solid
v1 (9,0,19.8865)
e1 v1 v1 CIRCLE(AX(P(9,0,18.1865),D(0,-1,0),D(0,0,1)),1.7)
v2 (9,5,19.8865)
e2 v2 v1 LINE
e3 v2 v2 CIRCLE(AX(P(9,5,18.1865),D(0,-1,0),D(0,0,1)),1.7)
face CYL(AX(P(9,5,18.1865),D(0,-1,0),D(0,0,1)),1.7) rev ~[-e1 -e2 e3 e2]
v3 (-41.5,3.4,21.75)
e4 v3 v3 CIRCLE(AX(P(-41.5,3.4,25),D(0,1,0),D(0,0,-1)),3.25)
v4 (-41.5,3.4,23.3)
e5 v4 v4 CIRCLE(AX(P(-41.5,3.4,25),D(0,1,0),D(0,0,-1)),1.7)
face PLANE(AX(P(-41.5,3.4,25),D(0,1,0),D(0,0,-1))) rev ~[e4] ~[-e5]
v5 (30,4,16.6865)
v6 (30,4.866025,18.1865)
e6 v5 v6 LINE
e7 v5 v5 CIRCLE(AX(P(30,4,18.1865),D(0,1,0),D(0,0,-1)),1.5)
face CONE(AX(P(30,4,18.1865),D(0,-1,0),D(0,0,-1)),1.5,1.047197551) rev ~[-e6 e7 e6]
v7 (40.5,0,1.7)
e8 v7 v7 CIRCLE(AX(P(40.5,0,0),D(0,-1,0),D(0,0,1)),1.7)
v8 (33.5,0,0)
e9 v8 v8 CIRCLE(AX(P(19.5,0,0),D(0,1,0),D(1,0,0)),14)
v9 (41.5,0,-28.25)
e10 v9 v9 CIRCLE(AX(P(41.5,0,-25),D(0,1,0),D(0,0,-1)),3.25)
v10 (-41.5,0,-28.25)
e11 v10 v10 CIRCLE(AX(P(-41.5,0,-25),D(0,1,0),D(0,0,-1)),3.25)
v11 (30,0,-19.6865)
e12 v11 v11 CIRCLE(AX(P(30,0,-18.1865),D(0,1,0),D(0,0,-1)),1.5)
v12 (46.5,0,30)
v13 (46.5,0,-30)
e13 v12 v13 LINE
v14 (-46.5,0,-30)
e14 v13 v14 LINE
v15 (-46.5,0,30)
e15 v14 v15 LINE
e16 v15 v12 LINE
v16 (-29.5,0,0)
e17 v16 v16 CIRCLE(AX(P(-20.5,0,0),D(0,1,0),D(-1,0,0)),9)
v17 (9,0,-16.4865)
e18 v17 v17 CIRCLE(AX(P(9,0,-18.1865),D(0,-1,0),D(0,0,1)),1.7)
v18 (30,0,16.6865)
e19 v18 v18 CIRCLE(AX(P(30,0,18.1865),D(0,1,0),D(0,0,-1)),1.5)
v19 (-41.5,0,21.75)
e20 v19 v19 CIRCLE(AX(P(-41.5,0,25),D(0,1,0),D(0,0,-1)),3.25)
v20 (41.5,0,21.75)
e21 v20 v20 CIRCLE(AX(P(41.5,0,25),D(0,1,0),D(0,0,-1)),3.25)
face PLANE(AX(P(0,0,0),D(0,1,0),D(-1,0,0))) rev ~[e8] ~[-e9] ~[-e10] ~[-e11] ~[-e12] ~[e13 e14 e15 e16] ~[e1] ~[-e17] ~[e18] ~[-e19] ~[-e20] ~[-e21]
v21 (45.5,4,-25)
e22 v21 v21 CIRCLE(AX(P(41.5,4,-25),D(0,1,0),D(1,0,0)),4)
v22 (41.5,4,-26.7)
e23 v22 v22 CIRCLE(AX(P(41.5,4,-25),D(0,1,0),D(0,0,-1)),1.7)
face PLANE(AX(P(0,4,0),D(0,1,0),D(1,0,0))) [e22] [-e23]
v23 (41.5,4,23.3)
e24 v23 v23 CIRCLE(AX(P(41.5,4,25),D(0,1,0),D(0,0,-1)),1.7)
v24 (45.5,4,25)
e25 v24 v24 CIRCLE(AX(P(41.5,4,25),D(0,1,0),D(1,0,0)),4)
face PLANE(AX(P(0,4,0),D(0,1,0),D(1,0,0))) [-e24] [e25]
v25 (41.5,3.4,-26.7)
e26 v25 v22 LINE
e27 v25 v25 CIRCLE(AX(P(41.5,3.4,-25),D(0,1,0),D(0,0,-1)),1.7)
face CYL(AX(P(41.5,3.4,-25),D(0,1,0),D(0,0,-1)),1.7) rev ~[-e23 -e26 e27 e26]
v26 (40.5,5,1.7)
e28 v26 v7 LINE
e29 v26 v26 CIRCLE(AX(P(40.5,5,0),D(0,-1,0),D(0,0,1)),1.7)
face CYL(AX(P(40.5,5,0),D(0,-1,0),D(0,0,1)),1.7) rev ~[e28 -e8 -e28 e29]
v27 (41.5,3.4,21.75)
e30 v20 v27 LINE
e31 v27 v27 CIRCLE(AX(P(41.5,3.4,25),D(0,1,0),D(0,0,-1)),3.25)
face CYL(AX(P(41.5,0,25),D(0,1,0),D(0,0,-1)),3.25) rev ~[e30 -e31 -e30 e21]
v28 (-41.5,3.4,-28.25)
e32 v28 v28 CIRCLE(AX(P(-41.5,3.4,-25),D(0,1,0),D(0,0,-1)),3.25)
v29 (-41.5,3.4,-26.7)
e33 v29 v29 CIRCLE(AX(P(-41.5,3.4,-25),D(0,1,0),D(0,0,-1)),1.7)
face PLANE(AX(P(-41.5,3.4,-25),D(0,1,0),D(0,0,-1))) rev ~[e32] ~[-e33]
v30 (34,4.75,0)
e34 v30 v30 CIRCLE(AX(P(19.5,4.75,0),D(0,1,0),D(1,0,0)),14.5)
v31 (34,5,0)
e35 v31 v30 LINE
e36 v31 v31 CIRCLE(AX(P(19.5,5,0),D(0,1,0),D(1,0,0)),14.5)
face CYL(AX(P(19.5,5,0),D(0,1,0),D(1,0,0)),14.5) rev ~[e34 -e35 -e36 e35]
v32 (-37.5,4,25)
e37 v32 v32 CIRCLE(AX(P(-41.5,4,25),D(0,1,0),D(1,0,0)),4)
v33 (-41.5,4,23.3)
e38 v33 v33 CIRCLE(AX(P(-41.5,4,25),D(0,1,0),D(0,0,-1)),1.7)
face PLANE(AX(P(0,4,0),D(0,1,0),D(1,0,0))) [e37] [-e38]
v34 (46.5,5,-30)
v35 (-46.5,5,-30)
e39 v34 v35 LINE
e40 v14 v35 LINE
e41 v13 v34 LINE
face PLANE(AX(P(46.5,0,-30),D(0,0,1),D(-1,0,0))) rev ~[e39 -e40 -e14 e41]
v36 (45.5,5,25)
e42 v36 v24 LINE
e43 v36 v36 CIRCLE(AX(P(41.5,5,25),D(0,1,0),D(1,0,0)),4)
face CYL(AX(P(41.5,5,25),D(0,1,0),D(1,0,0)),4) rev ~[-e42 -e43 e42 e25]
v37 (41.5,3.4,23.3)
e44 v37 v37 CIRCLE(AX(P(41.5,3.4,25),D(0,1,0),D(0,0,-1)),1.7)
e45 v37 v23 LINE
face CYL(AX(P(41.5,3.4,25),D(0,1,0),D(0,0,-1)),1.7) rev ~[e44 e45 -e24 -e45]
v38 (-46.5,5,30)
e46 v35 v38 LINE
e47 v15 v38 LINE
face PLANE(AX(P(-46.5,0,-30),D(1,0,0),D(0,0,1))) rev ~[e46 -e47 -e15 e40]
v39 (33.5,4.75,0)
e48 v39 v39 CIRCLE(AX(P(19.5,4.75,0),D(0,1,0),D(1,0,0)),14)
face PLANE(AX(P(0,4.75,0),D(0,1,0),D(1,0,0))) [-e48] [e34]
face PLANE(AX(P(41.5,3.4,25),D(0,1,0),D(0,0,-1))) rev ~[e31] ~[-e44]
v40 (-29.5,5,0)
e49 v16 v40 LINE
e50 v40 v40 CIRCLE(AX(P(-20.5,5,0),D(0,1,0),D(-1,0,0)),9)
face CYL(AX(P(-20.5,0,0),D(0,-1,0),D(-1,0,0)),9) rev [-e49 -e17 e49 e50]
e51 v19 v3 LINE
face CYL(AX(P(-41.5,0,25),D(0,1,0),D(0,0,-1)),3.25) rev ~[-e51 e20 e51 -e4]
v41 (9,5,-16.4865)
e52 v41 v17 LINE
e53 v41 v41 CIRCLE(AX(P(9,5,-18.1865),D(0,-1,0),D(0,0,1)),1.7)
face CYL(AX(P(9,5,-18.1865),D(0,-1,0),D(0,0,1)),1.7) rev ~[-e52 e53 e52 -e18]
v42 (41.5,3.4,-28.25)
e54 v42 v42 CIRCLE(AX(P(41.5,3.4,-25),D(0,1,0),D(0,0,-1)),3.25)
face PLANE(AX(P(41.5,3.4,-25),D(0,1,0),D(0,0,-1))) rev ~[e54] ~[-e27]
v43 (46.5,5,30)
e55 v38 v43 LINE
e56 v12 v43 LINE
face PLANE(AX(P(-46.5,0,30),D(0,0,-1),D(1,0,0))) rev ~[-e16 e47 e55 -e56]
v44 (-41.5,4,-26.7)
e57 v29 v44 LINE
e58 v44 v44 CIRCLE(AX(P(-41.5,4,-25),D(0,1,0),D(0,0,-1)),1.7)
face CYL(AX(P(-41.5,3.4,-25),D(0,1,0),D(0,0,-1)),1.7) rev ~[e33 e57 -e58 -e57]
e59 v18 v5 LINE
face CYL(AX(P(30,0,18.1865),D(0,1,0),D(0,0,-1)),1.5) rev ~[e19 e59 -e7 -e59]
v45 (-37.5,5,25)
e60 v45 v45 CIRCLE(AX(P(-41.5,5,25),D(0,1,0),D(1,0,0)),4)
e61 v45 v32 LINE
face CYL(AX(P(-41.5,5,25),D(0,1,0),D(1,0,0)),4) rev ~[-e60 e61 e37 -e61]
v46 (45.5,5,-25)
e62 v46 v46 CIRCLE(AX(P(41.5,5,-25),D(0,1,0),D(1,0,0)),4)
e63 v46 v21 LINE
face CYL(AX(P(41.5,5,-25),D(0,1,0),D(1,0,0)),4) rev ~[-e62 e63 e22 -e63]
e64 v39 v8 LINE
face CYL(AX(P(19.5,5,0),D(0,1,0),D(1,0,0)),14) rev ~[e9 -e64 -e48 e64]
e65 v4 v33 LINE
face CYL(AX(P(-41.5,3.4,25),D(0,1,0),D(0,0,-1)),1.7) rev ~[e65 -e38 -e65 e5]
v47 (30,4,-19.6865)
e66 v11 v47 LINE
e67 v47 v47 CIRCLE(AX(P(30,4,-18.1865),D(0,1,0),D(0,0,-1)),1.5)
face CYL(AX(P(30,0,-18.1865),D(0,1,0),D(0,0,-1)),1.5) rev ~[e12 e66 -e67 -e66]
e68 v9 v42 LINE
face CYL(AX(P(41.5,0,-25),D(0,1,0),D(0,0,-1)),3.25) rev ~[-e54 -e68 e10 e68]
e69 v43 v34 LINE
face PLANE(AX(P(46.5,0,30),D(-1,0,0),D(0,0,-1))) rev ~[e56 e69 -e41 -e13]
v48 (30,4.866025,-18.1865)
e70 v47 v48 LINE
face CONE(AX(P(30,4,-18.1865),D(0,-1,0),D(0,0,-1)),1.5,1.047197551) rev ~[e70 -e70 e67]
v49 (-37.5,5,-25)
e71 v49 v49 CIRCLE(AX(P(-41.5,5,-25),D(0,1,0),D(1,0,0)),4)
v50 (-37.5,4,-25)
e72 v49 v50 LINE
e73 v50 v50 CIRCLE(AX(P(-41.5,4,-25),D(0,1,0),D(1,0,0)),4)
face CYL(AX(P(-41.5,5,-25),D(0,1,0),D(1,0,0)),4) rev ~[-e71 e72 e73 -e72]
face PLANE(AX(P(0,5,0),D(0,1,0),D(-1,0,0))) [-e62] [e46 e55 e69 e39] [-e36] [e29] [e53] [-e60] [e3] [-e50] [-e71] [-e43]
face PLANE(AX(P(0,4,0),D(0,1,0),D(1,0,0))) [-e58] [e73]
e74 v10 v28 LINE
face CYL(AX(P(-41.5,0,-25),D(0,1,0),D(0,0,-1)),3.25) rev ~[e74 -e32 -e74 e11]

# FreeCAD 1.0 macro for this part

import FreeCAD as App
import Part
import Sketcher

V = App.Vector
Q = App.Units.Quantity

doc = App.newDocument("Part")
body = doc.addObject("PartDesign::Body", "Body")

# Sketch on XZ plane
sketch1 = body.newObject("Sketcher::SketchObject", "Sketch")
sketch1.AttachmentSupport = (doc.getObject("XZ_Plane"), [""])
sketch1.MapMode = "FlatFace"
sketch1.addGeometry([
    Part.LineSegment(V(-46, -30, 0), V(-46, 30, 0)),  # 0
    Part.LineSegment(V(-46, 30, 0), V(46, 30, 0)),  # 1
    Part.LineSegment(V(46, 30, 0), V(46, -30, 0)),  # 2
    Part.LineSegment(V(46, -30, 0), V(-46, -30, 0)),  # 3
    Part.Circle(V(20, 0, 0), V(0, 0, 1), 12),  # 4
    Part.Circle(V(-20, 0, 0), V(0, 0, 1), 9),  # 5
], False)
sketch1.addConstraint([
    Sketcher.Constraint("Coincident", 0, 2, 1, 1),
    Sketcher.Constraint("Coincident", 1, 2, 2, 1),
    Sketcher.Constraint("Coincident", 2, 2, 3, 1),
    Sketcher.Constraint("Coincident", 3, 2, 0, 1),
    Sketcher.Constraint("Vertical", 0),
    Sketcher.Constraint("Horizontal", 1),
    Sketcher.Constraint("Vertical", 2),
    Sketcher.Constraint("Horizontal", 3),
    Sketcher.Constraint("Symmetric", 0, 2, 2, 2, -1, 1),
    Sketcher.Constraint("PointOnObject", 4, 3, -1),
    Sketcher.Constraint("PointOnObject", 5, 3, -1),
    Sketcher.Constraint("Diameter", 4, Q("25 mm")),
    Sketcher.Constraint("Diameter", 5, Q("18 mm")),
    Sketcher.Constraint("DistanceX", 1, 1, 1, 2, Q("93 mm")),
    Sketcher.Constraint("DistanceY", 0, 1, 0, 2, Q("60 mm")),
    Sketcher.Constraint("DistanceX", 0, 2, 5, 3, Q("26 mm")),
    Sketcher.Constraint("DistanceX", 4, 3, 1, 2, Q("27 mm")),
])
pad1 = body.newObject("PartDesign::Pad", "Pad")
pad1.Profile = sketch1
pad1.Length = 5
pad1.Reversed = True

# Sketch on XZ plane
sketch2 = body.newObject("Sketcher::SketchObject", "Sketch001")
sketch2.AttachmentSupport = (doc.getObject("XZ_Plane"), [""])
sketch2.MapMode = "FlatFace"
sketch2.addGeometry([
    Part.Circle(V(41.5, -25, 0), V(0, 0, 1), 1.7),
    Part.Circle(V(-41.5, -25, 0), V(0, 0, 1), 1.7),
    Part.Circle(V(-41.5, 25, 0), V(0, 0, 1), 1.7),
    Part.Circle(V(41.5, 25, 0), V(0, 0, 1), 1.7),
], False)
sketch2.addConstraint([
    Sketcher.Constraint("Equal", 0, 1),
    Sketcher.Constraint("Equal", 1, 2),
    Sketcher.Constraint("Equal", 2, 3),
    Sketcher.Constraint("Symmetric", 0, 3, 2, 3, -1, 1),
    Sketcher.Constraint("Symmetric", 1, 3, 3, 3, -1, 1),
    Sketcher.Constraint("Symmetric", 0, 3, 1, 3, -2),
    Sketcher.Constraint("Diameter", 0, Q("3.4 mm")),
    Sketcher.Constraint("DistanceY", 0, 3, -1, 1, Q("25 mm")),
    Sketcher.Constraint("DistanceX", 1, 3, 0, 3, Q("83 mm")),
])
doc.recompute()
hole = body.newObject("PartDesign::Hole", "Hole")
hole.Profile = sketch2
hole.ThreadType = "None"
hole.Diameter = 3.4
hole.DepthType = "ThroughAll"
hole.HoleCutType = "Counterbore"
hole.HoleCutDiameter = 6.5
hole.HoleCutDepth = 3.4

# Sketch on XZ plane
sketch3 = body.newObject("Sketcher::SketchObject", "Sketch002")
sketch3.AttachmentSupport = (doc.getObject("XZ_Plane"), [""])
sketch3.MapMode = "FlatFace"
sketch3.AttachmentOffset = App.Placement(V(0, 0, -5), App.Rotation())
sketch3.addGeometry([
    Part.Circle(V(-41.5, -25, 0), V(0, 0, 1), 4),
    Part.Circle(V(41.5, 25, 0), V(0, 0, 1), 4),
    Part.Circle(V(-41.5, 25, 0), V(0, 0, 1), 4),
    Part.Circle(V(41.5, -25, 0), V(0, 0, 1), 4),
], False)
sketch3.addConstraint([
    Sketcher.Constraint("Equal", 0, 1),
    Sketcher.Constraint("Equal", 1, 2),
    Sketcher.Constraint("Equal", 2, 3),
    Sketcher.Constraint("Symmetric", 0, 3, 1, 3, -1, 1),
    Sketcher.Constraint("Symmetric", 2, 3, 3, 3, -1, 1),
    Sketcher.Constraint("Symmetric", 1, 3, 2, 3, -2),
    Sketcher.Constraint("Diameter", 0, Q("8 mm")),
    Sketcher.Constraint("DistanceX", 0, 3, 1, 3, Q("83 mm")),
    Sketcher.Constraint("DistanceY", 0, 3, 1, 3, Q("50 mm")),
])
pocket1 = body.newObject("PartDesign::Pocket", "Pocket")
pocket1.Profile = sketch3
pocket1.Length = 1
pocket1.Reversed = True

# Sketch on XZ plane
sketch4 = body.newObject("Sketcher::SketchObject", "Sketch003")
sketch4.AttachmentSupport = (doc.getObject("XZ_Plane"), [""])
sketch4.MapMode = "FlatFace"
sketch4.AttachmentOffset = App.Placement(V(0, 0, -5), App.Rotation())
sketch4.addGeometry([
    Part.Circle(V(20, 0, 0), V(0, 0, 1), 14),
    Part.Circle(V(20, 0, 0), V(0, 0, 1), 12),
], False)
sketch4.addConstraint([
    Sketcher.Constraint("Coincident", 1, 3, 0, 3),
    Sketcher.Constraint("PointOnObject", 0, 3, -1),
    Sketcher.Constraint("Diameter", 0, Q("28 mm")),
    Sketcher.Constraint("Diameter", 1, Q("25 mm")),
    Sketcher.Constraint("DistanceX", -1, 1, 0, 3, Q("19.5 mm")),
])
pocket2 = body.newObject("PartDesign::Pocket", "Pocket001")
pocket2.Profile = sketch4
pocket2.Type = "ThroughAll"
pocket2.Reversed = True

# Sketch on XZ plane
sketch5 = body.newObject("Sketcher::SketchObject", "Sketch004")
sketch5.AttachmentSupport = (doc.getObject("XZ_Plane"), [""])
sketch5.MapMode = "FlatFace"
sketch5.AttachmentOffset = App.Placement(V(0, 0, -5), App.Rotation())
sketch5.addGeometry([
    Part.Circle(V(40.5, 0, 0), V(0, 0, 1), 1.7),
    Part.Circle(V(9, -18.2, 0), V(0, 0, 1), 1.7),
    Part.Circle(V(9, 18.2, 0), V(0, 0, 1), 1.7),
], False)
sketch5.addConstraint([
    Sketcher.Constraint("Equal", 0, 1),
    Sketcher.Constraint("Equal", 1, 2),
    Sketcher.Constraint("Symmetric", 1, 3, 2, 3, -1),
    Sketcher.Constraint("PointOnObject", 0, 3, -1),
    Sketcher.Constraint("Diameter", 0, Q("3.4 mm")),
    Sketcher.Constraint("DistanceX", -1, 1, 1, 3, Q("9 mm")),
    Sketcher.Constraint("DistanceX", -1, 1, 0, 3, Q("40.5 mm")),
    Sketcher.Constraint("DistanceY", 1, 3, 2, 3, Q("36.373 mm")),
])
doc.recompute()
hole2 = body.newObject("PartDesign::Hole", "Hole001")
hole2.Profile = sketch5
hole2.ThreadType = "None"
hole2.Diameter = 3.4
hole2.DepthType = "ThroughAll"
hole2.Reversed = True

# Sketch on XZ plane
sketch6 = body.newObject("Sketcher::SketchObject", "Sketch005")
sketch6.AttachmentSupport = (doc.getObject("XZ_Plane"), [""])
sketch6.MapMode = "FlatFace"
sketch6.addGeometry([
    Part.Circle(V(30, 18.2, 0), V(0, 0, 1), 1.5),
    Part.Circle(V(30, -18.2, 0), V(0, 0, 1), 1.5),
], False)
sketch6.addConstraint([
    Sketcher.Constraint("Equal", 0, 1),
    Sketcher.Constraint("Symmetric", 0, 3, 1, 3, -1),
    Sketcher.Constraint("Diameter", 0, Q("3 mm")),
    Sketcher.Constraint("DistanceX", -1, 1, 0, 3, Q("30 mm")),
    Sketcher.Constraint("DistanceY", 1, 3, 0, 3, Q("36.373 mm")),
])
doc.recompute()
hole3 = body.newObject("PartDesign::Hole", "Hole002")
hole3.Profile = sketch6
hole3.ThreadType = "None"
hole3.Diameter = 3
hole3.DepthType = "Dimension"
hole3.Depth = 4
hole3.DrillPoint = "Angled"
hole3.DrillPointAngle = 120

# Sketch on XZ plane
sketch7 = body.newObject("Sketcher::SketchObject", "Sketch006")
sketch7.AttachmentSupport = (doc.getObject("XZ_Plane"), [""])
sketch7.MapMode = "FlatFace"
sketch7.AttachmentOffset = App.Placement(V(0, 0, -5), App.Rotation())
sketch7.addGeometry([
    Part.Circle(V(20, 0, 0), V(0, 0, 1), 14),
    Part.Circle(V(20, 0, 0), V(0, 0, 1), 14),
], False)
sketch7.addConstraint([
    Sketcher.Constraint("Coincident", 1, 3, 0, 3),
    Sketcher.Constraint("PointOnObject", 0, 3, -1),
    Sketcher.Constraint("Diameter", 0, Q("29 mm")),
    Sketcher.Constraint("Diameter", 1, Q("28 mm")),
    Sketcher.Constraint("DistanceX", -1, 1, 0, 3, Q("19.5 mm")),
])
pocket3 = body.newObject("PartDesign::Pocket", "Pocket002")
pocket3.Profile = sketch7
pocket3.Length = 0.25
pocket3.Reversed = True

doc.recompute()
